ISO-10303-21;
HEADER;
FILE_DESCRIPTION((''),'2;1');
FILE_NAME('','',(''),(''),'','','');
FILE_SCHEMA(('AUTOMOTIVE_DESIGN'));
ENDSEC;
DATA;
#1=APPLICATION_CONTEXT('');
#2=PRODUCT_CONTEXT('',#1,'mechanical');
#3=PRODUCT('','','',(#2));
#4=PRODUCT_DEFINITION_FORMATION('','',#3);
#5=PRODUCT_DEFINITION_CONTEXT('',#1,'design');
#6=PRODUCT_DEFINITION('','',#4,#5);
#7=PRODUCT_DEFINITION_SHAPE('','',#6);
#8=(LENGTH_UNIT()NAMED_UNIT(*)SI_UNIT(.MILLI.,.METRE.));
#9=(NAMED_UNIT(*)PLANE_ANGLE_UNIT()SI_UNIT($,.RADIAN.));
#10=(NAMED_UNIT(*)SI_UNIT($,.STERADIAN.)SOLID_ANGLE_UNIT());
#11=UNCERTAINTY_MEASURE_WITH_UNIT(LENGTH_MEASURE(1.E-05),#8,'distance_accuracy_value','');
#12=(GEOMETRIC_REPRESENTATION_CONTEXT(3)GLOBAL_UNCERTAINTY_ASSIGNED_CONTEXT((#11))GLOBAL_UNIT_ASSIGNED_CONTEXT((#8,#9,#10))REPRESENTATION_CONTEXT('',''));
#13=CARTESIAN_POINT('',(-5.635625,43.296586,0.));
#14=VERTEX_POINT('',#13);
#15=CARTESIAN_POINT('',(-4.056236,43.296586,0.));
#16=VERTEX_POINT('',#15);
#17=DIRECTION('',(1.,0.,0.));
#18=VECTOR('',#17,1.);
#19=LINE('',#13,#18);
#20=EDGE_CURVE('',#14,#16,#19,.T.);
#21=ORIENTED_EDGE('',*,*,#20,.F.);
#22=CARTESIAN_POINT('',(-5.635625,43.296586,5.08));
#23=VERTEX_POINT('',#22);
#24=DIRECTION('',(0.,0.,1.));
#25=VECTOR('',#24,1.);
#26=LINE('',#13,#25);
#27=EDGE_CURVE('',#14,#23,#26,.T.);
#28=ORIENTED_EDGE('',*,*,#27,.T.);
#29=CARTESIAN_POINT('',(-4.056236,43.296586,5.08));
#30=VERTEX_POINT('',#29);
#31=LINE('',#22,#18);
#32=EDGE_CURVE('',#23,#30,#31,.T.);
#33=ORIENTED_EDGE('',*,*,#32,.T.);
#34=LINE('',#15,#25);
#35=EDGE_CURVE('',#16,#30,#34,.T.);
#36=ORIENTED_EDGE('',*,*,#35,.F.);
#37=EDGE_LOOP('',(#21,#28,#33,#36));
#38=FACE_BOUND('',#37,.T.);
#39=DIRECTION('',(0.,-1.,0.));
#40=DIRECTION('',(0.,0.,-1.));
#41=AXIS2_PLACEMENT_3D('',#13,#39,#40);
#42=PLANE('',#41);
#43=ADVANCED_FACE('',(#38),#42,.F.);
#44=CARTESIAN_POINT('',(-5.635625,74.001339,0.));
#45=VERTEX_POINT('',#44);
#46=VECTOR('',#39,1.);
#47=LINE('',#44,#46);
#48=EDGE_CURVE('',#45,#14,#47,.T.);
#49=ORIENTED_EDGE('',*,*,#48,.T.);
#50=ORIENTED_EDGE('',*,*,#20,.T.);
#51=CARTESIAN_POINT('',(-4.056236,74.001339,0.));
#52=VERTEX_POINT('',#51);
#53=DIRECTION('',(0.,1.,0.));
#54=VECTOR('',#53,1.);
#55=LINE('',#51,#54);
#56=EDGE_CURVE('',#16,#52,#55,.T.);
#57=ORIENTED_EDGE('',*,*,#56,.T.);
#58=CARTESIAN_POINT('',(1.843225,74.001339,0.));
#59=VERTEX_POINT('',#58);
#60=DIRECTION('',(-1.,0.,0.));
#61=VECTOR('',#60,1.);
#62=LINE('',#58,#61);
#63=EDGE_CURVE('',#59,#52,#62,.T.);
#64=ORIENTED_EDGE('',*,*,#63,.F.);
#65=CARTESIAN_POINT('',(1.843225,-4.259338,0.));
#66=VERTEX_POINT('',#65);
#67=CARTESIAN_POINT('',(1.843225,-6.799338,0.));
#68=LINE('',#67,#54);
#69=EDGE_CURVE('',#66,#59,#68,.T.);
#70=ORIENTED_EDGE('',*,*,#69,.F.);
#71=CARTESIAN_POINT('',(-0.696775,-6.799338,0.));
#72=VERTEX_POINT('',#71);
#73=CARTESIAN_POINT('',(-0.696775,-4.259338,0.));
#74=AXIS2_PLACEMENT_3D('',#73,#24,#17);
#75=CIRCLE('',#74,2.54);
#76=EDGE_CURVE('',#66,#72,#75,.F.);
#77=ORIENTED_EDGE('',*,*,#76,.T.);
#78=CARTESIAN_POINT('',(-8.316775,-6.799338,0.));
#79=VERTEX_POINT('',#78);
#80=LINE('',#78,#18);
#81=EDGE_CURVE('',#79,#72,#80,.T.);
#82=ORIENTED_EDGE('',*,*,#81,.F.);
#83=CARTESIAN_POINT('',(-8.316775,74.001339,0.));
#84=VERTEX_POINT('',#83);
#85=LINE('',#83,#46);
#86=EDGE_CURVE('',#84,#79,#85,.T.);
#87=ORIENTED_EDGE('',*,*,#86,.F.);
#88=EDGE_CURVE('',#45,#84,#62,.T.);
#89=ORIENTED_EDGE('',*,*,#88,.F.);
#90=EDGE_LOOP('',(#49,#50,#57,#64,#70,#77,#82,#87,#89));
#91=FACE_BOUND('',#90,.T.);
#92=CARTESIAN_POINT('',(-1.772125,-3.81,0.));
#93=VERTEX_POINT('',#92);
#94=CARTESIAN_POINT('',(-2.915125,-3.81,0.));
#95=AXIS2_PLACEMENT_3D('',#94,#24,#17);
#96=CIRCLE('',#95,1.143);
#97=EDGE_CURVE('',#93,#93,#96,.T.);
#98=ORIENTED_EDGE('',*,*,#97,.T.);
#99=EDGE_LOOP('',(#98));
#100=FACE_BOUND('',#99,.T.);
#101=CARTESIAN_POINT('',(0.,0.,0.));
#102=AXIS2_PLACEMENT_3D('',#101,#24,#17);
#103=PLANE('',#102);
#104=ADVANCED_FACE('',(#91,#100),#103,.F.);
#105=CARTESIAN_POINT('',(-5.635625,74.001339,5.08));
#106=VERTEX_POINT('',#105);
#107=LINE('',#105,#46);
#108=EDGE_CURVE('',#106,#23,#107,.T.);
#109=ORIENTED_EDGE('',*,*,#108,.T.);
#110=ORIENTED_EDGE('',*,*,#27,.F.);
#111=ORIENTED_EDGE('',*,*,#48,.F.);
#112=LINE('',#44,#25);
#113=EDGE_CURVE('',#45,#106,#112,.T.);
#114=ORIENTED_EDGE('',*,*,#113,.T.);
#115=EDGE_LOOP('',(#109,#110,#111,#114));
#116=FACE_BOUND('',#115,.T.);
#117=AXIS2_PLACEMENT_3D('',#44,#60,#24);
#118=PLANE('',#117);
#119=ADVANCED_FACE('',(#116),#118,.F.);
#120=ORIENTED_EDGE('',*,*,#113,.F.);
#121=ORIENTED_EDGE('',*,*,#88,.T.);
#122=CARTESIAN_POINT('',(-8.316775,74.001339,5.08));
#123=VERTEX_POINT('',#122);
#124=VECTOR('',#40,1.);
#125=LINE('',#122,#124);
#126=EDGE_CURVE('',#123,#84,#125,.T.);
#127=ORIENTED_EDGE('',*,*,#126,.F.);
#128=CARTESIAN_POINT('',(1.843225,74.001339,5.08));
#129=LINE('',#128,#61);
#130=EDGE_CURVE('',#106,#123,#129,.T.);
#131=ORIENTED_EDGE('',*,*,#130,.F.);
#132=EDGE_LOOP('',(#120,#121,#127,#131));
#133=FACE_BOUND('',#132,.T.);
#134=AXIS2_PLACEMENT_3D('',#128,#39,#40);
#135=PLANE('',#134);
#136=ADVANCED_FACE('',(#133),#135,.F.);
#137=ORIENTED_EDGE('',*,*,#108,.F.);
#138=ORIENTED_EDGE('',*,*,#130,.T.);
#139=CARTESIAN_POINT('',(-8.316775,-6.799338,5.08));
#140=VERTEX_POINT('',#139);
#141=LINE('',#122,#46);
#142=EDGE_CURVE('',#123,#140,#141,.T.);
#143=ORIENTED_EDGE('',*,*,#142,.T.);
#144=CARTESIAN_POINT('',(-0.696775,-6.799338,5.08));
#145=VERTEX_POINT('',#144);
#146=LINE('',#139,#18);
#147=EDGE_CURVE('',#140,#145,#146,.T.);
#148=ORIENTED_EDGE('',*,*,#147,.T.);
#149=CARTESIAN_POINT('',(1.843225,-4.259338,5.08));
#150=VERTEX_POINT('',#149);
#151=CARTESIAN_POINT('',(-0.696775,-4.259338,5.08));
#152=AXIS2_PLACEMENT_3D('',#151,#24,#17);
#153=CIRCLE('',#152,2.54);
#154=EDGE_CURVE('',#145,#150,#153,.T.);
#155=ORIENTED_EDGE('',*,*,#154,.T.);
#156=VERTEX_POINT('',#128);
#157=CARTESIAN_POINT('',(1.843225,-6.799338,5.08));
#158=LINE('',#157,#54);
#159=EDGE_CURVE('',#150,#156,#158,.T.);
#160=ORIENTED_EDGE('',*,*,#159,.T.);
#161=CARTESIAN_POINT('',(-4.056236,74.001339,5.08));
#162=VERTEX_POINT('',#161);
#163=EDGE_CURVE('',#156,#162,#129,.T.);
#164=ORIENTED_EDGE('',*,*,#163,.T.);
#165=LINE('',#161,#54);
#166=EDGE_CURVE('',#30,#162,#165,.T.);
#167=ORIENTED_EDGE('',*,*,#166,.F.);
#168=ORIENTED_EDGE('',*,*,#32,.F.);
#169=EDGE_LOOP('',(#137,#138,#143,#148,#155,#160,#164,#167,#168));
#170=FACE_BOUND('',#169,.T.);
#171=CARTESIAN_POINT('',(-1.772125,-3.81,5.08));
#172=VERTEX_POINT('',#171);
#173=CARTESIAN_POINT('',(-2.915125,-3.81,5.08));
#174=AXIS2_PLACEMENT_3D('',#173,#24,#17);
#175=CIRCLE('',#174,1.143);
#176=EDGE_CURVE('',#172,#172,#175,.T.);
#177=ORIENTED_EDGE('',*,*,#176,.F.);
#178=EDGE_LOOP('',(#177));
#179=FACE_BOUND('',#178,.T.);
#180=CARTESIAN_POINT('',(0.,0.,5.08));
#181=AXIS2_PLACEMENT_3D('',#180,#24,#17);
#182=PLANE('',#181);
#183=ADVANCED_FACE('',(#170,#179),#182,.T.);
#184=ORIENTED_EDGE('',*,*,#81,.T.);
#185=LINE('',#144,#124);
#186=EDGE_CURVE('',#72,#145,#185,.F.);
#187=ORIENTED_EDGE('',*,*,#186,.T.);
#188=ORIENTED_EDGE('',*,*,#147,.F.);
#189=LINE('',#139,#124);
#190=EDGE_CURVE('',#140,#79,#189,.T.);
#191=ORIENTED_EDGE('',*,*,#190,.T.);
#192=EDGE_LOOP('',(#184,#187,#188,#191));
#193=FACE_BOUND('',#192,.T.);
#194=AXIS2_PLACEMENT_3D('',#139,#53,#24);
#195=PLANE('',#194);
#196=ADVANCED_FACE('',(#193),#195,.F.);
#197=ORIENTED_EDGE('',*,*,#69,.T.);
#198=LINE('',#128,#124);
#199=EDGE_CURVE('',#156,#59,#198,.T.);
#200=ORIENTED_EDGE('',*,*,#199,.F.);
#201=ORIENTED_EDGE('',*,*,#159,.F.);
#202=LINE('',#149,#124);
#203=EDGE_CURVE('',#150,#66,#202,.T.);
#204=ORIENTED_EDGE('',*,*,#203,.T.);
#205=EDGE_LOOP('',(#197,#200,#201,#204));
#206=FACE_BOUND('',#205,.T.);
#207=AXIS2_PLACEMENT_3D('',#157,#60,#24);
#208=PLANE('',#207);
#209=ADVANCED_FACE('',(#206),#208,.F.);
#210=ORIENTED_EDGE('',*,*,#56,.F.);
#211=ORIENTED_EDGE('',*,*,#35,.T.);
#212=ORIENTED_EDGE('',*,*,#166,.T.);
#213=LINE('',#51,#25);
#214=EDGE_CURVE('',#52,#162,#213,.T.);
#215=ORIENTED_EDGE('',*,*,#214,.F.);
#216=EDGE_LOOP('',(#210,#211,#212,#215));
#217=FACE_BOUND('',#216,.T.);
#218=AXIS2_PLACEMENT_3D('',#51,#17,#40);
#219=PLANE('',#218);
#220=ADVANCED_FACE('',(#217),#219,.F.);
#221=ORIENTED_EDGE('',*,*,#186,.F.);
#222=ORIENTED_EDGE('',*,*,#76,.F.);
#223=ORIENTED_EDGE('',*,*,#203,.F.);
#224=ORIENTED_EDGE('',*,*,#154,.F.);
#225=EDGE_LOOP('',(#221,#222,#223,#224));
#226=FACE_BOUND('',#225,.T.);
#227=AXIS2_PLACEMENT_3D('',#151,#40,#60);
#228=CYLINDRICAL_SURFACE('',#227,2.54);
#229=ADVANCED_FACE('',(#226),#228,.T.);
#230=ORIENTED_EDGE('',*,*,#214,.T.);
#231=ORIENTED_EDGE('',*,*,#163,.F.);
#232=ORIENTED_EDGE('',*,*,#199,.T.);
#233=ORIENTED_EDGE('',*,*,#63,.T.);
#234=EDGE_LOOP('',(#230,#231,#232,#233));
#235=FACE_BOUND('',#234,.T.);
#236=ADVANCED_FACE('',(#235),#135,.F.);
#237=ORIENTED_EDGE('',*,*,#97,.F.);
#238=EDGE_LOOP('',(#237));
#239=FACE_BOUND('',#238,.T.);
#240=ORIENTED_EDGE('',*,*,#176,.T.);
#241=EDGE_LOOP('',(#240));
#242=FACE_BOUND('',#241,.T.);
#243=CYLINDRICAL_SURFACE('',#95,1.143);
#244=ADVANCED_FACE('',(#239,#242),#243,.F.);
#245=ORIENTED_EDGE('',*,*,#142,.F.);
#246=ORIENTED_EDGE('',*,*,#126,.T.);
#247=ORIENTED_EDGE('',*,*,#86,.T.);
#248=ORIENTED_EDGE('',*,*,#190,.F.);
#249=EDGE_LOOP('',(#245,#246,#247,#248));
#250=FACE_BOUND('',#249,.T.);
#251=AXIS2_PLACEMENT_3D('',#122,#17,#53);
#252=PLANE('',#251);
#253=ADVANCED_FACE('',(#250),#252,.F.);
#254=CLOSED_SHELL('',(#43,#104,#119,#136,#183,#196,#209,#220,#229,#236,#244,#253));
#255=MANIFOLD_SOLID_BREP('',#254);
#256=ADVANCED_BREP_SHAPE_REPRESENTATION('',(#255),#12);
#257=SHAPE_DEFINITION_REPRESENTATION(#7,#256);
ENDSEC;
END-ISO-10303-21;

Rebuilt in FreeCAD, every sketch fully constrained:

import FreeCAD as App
import Part
import Sketcher

V = App.Vector
Q = App.Units.Quantity


def edges_at(feature, points):
    """Names of the edges that pass closest to the given points."""
    edges = feature.Shape.Edges
    near = lambda p: min(range(len(edges)), key=lambda i: edges[i].distToShape(Part.Vertex(*p))[0])
    return sorted({f"Edge{near(p) + 1}" for p in points})


def add_polygon(sketch, points):
    """Adds a closed chain of lines whose ends are joined by coincident constraints."""
    first, n = sketch.GeometryCount, len(points)
    for a, b in zip(points, points[1:] + points[:1]):
        sketch.addGeometry(Part.LineSegment(App.Vector(*a, 0), App.Vector(*b, 0)), False)
    for i in range(n):
        sketch.addConstraint(Sketcher.Constraint("Coincident", first + i, 2, first + (i + 1) % n, 1))

doc = App.newDocument("Part")
body = doc.addObject("PartDesign::Body", "Body")

# Sketch on XY plane
sketch1 = body.newObject("Sketcher::SketchObject", "Sketch")
sketch1.AttachmentSupport = (doc.getObject("XY_Plane"), [""])
sketch1.MapMode = "FlatFace"
add_polygon(sketch1, [(-8.316775, 74.001339), (-8.316775, -6.799338), (1.843225, -6.799338), (1.843225, 74.001339)])  # lines 0-3
sketch1.addConstraint(Sketcher.Constraint("Vertical", 0))
sketch1.addConstraint(Sketcher.Constraint("Horizontal", 1))
sketch1.addConstraint(Sketcher.Constraint("Vertical", 2))
sketch1.addConstraint(Sketcher.Constraint("Horizontal", 3))
sketch1.addConstraint(Sketcher.Constraint("DistanceX", 1, 1, 1, 2, Q("0.4 in")))
sketch1.addConstraint(Sketcher.Constraint("DistanceY", 0, 2, 0, 1, Q("80.800677 mm")))
sketch1.addConstraint(Sketcher.Constraint("DistanceY", -1, 1, 2, 2, Q("74.001339 mm")))
sketch1.addConstraint(Sketcher.Constraint("DistanceX", 0, 2, -1, 1, Q("8.316775 mm")))
pad1 = body.newObject("PartDesign::Pad", "Pad")
pad1.Profile = sketch1
pad1.Length = Q("0.2 in")
doc.recompute()

fillet = body.newObject("PartDesign::Fillet", "Fillet")
fillet.Base = (pad1, edges_at(pad1, [(1.843, -6.799, 2.54)]))
fillet.Radius = Q("0.1 in")

# Sketch on XY plane
sketch2 = body.newObject("Sketcher::SketchObject", "Sketch001")
sketch2.AttachmentSupport = (doc.getObject("XY_Plane"), [""])
sketch2.MapMode = "FlatFace"
sketch2.AttachmentOffset = App.Placement(V(0, 0, 0.2 * 25.4), App.Rotation())
sketch2.addGeometry(Part.Circle(V(-2.915125, -3.81, 0), V(0, 0, 1), 1.143), False)  # 0
add_polygon(sketch2, [(-5.635625, 74.001339), (-5.635625, 43.296586), (-4.056236, 43.296586), (-4.056236, 74.001339)])  # lines 1-4
sketch2.addConstraint(Sketcher.Constraint("Vertical", 1))
sketch2.addConstraint(Sketcher.Constraint("Horizontal", 2))
sketch2.addConstraint(Sketcher.Constraint("Vertical", 3))
sketch2.addConstraint(Sketcher.Constraint("Horizontal", 4))
sketch2.addConstraint(Sketcher.Constraint("Diameter", 0, Q("0.09 in")))
sketch2.addConstraint(Sketcher.Constraint("DistanceY", 0, 3, -1, 1, Q("0.15 in")))
sketch2.addConstraint(Sketcher.Constraint("DistanceX", 2, 1, 2, 2, Q("1.579389 mm")))
sketch2.addConstraint(Sketcher.Constraint("DistanceX", 1, 2, 0, 3, Q("2.7205 mm")))
sketch2.addConstraint(Sketcher.Constraint("DistanceY", 1, 2, 1, 1, Q("30.704752 mm")))
sketch2.addConstraint(Sketcher.Constraint("DistanceY", -1, 1, 3, 2, Q("74.001339 mm")))
sketch2.addConstraint(Sketcher.Constraint("DistanceX", 0, 3, -1, 1, Q("2.915125 mm")))
pocket1 = body.newObject("PartDesign::Pocket", "Pocket")
pocket1.Profile = sketch2
pocket1.Length = Q("0.2 in")

doc.recompute()
